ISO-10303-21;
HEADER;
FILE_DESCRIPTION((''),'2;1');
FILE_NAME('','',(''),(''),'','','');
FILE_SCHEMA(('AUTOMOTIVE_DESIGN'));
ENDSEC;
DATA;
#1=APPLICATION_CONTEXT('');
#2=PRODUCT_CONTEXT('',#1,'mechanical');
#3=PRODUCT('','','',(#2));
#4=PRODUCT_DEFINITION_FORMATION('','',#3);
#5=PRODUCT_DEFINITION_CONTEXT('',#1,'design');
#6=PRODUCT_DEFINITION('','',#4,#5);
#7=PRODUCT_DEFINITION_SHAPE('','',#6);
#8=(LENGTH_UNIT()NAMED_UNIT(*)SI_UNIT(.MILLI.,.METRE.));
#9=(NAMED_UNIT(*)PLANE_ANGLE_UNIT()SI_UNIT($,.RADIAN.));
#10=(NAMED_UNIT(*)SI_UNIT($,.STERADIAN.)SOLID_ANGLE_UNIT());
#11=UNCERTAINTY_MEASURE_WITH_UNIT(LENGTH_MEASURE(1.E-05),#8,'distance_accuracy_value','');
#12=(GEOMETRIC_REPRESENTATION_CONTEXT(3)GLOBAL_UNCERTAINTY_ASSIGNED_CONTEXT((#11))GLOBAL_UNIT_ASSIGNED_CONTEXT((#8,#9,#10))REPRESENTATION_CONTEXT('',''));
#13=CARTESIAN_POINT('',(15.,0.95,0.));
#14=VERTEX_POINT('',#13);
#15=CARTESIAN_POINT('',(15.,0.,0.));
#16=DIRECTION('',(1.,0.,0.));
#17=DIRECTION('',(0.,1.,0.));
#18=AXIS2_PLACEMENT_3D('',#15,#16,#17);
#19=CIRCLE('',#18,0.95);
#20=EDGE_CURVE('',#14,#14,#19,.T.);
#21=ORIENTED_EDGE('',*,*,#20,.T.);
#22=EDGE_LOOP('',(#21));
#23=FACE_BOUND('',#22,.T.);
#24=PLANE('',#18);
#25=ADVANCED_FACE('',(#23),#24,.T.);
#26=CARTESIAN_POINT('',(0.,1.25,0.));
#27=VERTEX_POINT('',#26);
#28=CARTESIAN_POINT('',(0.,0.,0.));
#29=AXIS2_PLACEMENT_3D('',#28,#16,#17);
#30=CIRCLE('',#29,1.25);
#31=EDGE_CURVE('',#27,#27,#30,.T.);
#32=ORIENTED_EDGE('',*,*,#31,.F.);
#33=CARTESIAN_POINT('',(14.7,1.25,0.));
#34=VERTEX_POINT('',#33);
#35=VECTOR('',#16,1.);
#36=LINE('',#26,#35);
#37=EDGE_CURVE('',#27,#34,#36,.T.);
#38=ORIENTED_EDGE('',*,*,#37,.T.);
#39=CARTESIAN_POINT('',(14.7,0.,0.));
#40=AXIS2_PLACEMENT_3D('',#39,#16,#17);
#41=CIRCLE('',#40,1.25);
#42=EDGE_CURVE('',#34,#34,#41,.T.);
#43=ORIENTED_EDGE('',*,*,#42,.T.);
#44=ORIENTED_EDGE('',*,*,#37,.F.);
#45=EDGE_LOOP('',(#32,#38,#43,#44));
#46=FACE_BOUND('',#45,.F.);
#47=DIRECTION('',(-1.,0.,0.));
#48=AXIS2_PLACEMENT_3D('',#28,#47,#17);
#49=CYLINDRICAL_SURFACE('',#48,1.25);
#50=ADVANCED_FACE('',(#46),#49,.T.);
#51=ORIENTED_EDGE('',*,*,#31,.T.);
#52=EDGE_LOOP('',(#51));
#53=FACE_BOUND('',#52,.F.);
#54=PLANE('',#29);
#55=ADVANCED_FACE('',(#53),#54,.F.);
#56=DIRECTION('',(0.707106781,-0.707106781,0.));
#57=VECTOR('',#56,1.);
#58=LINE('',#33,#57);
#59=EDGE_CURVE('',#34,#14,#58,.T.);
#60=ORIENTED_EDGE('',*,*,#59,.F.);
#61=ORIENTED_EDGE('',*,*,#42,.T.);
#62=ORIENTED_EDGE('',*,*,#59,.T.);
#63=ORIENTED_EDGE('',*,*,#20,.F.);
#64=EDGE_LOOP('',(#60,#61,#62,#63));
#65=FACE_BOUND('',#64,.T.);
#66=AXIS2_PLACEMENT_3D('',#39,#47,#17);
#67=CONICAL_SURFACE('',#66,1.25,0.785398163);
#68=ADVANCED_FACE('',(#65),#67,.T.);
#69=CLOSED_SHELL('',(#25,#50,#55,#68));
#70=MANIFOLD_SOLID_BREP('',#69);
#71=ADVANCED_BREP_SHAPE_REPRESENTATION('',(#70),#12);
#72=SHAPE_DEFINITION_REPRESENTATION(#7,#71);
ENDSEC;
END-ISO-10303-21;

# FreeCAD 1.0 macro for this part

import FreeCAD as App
import Part
import Sketcher


def edges_at(feature, points):
    """Names of the edges that pass closest to the given points."""
    edges = feature.Shape.Edges
    near = lambda p: min(range(len(edges)), key=lambda i: edges[i].distToShape(Part.Vertex(*p))[0])
    return sorted({f"Edge{near(p) + 1}" for p in points})

doc = App.newDocument("Part")
body = doc.addObject("PartDesign::Body", "Body")

# Sketch on YZ plane
sketch1 = body.newObject("Sketcher::SketchObject", "Sketch")
sketch1.AttachmentSupport = (doc.getObject("YZ_Plane"), [""])
sketch1.MapMode = "FlatFace"
sketch1.addGeometry(Part.Circle(App.Vector(0, 0, 0), App.Vector(0, 0, 1), 1.2), False)
sketch1.addConstraint(Sketcher.Constraint("Coincident", 0, 3, -1, 1))
sketch1.addConstraint(Sketcher.Constraint("Diameter", 0, 2.5))
pad1 = body.newObject("PartDesign::Pad", "Pad")
pad1.Profile = sketch1
pad1.Length = 15
doc.recompute()

chamfer = body.newObject("PartDesign::Chamfer", "Chamfer")
chamfer.Base = (pad1, edges_at(pad1, [(15, -1.25, 0)]))
chamfer.Size = 0.3

doc.recompute()
